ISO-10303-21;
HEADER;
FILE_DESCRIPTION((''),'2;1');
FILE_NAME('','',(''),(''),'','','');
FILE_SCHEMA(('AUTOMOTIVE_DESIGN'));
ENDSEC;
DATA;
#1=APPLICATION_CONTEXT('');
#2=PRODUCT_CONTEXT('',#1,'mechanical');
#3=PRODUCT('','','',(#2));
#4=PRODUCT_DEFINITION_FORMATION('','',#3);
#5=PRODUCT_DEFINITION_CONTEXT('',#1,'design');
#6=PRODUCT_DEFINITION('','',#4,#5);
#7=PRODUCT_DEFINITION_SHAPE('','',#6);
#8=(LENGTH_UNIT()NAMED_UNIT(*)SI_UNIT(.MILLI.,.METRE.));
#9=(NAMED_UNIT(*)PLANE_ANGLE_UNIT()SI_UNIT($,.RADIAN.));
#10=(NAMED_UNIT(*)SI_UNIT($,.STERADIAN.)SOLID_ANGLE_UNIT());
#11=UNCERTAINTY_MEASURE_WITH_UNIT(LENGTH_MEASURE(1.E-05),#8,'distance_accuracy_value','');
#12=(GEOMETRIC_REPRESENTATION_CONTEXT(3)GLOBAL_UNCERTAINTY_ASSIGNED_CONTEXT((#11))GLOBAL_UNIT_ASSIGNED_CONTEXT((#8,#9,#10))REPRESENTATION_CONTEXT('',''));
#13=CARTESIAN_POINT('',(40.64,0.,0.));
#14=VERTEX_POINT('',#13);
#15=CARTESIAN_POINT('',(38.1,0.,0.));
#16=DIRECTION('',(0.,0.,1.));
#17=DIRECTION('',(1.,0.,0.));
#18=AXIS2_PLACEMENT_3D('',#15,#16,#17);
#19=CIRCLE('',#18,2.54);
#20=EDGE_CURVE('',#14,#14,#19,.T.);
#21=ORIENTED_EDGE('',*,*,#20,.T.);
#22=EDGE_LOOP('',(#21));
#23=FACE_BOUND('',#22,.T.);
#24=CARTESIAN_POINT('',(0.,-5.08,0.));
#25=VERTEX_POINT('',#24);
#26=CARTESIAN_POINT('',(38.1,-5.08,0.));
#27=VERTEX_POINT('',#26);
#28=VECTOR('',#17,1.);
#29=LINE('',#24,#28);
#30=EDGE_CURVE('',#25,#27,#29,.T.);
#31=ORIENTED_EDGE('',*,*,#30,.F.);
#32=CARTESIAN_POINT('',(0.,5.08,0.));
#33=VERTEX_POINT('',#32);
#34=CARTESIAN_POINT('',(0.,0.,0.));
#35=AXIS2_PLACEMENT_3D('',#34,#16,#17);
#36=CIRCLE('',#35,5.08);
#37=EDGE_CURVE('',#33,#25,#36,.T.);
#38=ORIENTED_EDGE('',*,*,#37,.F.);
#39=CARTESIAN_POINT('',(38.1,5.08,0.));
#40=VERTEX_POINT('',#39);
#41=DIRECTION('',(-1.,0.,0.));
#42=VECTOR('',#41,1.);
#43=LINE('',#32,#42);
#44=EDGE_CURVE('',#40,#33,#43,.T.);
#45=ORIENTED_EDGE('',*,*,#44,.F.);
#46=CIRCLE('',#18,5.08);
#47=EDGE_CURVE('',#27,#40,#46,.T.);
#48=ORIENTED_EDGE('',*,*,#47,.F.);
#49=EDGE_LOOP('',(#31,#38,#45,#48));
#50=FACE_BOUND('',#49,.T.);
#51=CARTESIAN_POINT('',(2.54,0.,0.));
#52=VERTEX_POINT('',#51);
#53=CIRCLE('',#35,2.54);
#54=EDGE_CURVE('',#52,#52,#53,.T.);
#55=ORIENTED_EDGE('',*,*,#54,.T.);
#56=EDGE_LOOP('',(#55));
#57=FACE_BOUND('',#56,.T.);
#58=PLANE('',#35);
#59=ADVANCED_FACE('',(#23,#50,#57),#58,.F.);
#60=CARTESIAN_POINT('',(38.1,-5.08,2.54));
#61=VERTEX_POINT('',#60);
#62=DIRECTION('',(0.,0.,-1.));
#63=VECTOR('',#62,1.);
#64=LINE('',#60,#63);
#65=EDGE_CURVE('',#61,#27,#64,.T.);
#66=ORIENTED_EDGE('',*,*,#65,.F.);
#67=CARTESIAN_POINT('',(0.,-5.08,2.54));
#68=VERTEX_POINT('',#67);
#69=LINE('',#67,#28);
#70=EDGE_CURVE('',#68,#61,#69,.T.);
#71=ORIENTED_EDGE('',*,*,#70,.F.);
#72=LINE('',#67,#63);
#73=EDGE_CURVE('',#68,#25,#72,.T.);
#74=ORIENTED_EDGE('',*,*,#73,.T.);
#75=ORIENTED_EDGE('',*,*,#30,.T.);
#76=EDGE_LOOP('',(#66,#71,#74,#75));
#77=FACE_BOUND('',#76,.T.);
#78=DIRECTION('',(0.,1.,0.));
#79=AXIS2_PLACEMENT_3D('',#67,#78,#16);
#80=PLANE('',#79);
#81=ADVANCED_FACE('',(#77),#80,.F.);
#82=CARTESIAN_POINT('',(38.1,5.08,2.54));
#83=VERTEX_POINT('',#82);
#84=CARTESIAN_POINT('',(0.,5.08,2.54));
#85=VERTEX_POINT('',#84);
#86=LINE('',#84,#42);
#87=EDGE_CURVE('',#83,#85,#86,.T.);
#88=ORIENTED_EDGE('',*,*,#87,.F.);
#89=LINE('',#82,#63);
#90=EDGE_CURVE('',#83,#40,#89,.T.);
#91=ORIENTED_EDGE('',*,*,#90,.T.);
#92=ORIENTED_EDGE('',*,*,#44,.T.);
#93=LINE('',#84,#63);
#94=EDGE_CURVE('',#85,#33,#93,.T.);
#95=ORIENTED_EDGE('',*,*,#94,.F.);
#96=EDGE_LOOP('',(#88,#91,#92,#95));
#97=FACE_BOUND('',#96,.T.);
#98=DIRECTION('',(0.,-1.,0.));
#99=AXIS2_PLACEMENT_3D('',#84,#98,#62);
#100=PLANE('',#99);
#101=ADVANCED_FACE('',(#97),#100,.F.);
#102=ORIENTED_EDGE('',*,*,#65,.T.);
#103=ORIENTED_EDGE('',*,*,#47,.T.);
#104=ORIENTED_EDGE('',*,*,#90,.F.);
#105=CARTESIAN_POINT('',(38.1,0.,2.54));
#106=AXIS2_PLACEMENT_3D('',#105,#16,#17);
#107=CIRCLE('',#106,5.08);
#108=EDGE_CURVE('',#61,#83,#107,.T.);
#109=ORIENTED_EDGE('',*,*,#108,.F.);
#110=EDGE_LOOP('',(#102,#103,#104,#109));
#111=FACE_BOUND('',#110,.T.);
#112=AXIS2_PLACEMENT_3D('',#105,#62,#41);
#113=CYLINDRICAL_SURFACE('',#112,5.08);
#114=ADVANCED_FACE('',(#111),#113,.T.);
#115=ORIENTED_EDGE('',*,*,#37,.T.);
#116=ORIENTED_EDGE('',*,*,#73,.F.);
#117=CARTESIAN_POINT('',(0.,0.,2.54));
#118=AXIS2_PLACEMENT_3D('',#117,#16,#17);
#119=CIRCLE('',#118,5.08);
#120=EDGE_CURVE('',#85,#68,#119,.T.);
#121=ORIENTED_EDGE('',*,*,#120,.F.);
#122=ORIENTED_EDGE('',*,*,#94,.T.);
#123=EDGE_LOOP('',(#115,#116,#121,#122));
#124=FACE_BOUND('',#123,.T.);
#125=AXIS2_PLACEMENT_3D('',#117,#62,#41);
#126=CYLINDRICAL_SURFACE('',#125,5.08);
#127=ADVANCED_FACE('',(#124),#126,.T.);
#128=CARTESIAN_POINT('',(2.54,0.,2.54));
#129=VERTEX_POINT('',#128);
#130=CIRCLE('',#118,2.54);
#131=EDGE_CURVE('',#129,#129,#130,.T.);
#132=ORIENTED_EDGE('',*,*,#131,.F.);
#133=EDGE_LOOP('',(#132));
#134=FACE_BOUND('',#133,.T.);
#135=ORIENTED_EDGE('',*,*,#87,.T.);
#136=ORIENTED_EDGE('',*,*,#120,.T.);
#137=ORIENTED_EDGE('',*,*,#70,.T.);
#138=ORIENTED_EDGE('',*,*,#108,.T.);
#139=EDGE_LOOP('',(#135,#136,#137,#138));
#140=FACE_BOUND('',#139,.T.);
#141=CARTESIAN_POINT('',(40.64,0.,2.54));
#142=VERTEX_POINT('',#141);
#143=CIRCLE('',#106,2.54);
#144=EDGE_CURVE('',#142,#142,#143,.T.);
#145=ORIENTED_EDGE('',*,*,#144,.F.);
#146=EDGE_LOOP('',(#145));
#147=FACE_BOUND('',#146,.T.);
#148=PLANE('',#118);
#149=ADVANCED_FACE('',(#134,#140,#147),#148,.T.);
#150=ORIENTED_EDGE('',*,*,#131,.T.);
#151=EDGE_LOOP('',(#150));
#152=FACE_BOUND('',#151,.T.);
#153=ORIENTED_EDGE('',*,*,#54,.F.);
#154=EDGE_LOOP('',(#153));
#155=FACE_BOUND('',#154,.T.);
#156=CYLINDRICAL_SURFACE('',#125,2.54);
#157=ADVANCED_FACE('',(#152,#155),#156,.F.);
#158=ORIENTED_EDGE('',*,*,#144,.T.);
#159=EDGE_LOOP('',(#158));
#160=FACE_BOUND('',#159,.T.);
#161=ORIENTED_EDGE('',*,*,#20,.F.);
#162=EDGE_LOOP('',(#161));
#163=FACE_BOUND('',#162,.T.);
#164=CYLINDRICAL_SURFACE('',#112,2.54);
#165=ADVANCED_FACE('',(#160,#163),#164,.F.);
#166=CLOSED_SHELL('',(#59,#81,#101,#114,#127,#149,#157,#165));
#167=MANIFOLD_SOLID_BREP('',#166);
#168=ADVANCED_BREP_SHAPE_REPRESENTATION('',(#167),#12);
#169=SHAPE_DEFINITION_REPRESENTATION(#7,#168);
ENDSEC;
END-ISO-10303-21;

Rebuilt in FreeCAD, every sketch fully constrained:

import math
import FreeCAD as App
import Part
import Sketcher
Q = App.Units.Quantity

doc = App.newDocument("Part")
body = doc.addObject("PartDesign::Body", "Body")

# Sketch on XY plane
sketch1 = body.newObject("Sketcher::SketchObject", "Sketch")
sketch1.AttachmentSupport = (doc.getObject("XY_Plane"), [""])
sketch1.MapMode = "FlatFace"
sketch1.addGeometry([
    Part.LineSegment(App.Vector(38.1, 5.1, 0), App.Vector(0, 5.1, 0)),  # 0
    Part.ArcOfCircle(Part.Circle(App.Vector(0, 0, 0), App.Vector(0, 0, 1), 5.1), math.radians(90), math.radians(270)),  # 1
    Part.LineSegment(App.Vector(0, -5.1, 0), App.Vector(38.1, -5.1, 0)),  # 2
    Part.ArcOfCircle(Part.Circle(App.Vector(38.1, 0, 0), App.Vector(0, 0, 1), 5.1), math.radians(-90), math.radians(90)),  # 3
    Part.Circle(App.Vector(38.1, 0, 0), App.Vector(0, 0, 1), 2.5),  # 4
    Part.Circle(App.Vector(0, 0, 0), App.Vector(0, 0, 1), 2.5),  # 5
], False)
sketch1.addConstraint([
    Sketcher.Constraint("Tangent", 0, 2, 1, 1),
    Sketcher.Constraint("Tangent", 1, 2, 2, 1),
    Sketcher.Constraint("Tangent", 2, 2, 3, 1),
    Sketcher.Constraint("Tangent", 3, 2, 0, 1),
    Sketcher.Constraint("Horizontal", 0),
    Sketcher.Constraint("Horizontal", 2),
    Sketcher.Constraint("Coincident", 1, 3, -1, 1),
    Sketcher.Constraint("Coincident", 5, 3, -1, 1),
    Sketcher.Constraint("Coincident", 4, 3, 3, 3),
    Sketcher.Constraint("Equal", 4, 5),
    Sketcher.Constraint("Diameter", 4, Q("0.2 in")),
    Sketcher.Constraint("Radius", 1, Q("0.2 in")),
    Sketcher.Constraint("DistanceX", 0, 2, 0, 1, Q("1.5 in")),
])
pad1 = body.newObject("PartDesign::Pad", "Pad")
pad1.Profile = sketch1
pad1.Length = Q("0.1 in")

doc.recompute()
